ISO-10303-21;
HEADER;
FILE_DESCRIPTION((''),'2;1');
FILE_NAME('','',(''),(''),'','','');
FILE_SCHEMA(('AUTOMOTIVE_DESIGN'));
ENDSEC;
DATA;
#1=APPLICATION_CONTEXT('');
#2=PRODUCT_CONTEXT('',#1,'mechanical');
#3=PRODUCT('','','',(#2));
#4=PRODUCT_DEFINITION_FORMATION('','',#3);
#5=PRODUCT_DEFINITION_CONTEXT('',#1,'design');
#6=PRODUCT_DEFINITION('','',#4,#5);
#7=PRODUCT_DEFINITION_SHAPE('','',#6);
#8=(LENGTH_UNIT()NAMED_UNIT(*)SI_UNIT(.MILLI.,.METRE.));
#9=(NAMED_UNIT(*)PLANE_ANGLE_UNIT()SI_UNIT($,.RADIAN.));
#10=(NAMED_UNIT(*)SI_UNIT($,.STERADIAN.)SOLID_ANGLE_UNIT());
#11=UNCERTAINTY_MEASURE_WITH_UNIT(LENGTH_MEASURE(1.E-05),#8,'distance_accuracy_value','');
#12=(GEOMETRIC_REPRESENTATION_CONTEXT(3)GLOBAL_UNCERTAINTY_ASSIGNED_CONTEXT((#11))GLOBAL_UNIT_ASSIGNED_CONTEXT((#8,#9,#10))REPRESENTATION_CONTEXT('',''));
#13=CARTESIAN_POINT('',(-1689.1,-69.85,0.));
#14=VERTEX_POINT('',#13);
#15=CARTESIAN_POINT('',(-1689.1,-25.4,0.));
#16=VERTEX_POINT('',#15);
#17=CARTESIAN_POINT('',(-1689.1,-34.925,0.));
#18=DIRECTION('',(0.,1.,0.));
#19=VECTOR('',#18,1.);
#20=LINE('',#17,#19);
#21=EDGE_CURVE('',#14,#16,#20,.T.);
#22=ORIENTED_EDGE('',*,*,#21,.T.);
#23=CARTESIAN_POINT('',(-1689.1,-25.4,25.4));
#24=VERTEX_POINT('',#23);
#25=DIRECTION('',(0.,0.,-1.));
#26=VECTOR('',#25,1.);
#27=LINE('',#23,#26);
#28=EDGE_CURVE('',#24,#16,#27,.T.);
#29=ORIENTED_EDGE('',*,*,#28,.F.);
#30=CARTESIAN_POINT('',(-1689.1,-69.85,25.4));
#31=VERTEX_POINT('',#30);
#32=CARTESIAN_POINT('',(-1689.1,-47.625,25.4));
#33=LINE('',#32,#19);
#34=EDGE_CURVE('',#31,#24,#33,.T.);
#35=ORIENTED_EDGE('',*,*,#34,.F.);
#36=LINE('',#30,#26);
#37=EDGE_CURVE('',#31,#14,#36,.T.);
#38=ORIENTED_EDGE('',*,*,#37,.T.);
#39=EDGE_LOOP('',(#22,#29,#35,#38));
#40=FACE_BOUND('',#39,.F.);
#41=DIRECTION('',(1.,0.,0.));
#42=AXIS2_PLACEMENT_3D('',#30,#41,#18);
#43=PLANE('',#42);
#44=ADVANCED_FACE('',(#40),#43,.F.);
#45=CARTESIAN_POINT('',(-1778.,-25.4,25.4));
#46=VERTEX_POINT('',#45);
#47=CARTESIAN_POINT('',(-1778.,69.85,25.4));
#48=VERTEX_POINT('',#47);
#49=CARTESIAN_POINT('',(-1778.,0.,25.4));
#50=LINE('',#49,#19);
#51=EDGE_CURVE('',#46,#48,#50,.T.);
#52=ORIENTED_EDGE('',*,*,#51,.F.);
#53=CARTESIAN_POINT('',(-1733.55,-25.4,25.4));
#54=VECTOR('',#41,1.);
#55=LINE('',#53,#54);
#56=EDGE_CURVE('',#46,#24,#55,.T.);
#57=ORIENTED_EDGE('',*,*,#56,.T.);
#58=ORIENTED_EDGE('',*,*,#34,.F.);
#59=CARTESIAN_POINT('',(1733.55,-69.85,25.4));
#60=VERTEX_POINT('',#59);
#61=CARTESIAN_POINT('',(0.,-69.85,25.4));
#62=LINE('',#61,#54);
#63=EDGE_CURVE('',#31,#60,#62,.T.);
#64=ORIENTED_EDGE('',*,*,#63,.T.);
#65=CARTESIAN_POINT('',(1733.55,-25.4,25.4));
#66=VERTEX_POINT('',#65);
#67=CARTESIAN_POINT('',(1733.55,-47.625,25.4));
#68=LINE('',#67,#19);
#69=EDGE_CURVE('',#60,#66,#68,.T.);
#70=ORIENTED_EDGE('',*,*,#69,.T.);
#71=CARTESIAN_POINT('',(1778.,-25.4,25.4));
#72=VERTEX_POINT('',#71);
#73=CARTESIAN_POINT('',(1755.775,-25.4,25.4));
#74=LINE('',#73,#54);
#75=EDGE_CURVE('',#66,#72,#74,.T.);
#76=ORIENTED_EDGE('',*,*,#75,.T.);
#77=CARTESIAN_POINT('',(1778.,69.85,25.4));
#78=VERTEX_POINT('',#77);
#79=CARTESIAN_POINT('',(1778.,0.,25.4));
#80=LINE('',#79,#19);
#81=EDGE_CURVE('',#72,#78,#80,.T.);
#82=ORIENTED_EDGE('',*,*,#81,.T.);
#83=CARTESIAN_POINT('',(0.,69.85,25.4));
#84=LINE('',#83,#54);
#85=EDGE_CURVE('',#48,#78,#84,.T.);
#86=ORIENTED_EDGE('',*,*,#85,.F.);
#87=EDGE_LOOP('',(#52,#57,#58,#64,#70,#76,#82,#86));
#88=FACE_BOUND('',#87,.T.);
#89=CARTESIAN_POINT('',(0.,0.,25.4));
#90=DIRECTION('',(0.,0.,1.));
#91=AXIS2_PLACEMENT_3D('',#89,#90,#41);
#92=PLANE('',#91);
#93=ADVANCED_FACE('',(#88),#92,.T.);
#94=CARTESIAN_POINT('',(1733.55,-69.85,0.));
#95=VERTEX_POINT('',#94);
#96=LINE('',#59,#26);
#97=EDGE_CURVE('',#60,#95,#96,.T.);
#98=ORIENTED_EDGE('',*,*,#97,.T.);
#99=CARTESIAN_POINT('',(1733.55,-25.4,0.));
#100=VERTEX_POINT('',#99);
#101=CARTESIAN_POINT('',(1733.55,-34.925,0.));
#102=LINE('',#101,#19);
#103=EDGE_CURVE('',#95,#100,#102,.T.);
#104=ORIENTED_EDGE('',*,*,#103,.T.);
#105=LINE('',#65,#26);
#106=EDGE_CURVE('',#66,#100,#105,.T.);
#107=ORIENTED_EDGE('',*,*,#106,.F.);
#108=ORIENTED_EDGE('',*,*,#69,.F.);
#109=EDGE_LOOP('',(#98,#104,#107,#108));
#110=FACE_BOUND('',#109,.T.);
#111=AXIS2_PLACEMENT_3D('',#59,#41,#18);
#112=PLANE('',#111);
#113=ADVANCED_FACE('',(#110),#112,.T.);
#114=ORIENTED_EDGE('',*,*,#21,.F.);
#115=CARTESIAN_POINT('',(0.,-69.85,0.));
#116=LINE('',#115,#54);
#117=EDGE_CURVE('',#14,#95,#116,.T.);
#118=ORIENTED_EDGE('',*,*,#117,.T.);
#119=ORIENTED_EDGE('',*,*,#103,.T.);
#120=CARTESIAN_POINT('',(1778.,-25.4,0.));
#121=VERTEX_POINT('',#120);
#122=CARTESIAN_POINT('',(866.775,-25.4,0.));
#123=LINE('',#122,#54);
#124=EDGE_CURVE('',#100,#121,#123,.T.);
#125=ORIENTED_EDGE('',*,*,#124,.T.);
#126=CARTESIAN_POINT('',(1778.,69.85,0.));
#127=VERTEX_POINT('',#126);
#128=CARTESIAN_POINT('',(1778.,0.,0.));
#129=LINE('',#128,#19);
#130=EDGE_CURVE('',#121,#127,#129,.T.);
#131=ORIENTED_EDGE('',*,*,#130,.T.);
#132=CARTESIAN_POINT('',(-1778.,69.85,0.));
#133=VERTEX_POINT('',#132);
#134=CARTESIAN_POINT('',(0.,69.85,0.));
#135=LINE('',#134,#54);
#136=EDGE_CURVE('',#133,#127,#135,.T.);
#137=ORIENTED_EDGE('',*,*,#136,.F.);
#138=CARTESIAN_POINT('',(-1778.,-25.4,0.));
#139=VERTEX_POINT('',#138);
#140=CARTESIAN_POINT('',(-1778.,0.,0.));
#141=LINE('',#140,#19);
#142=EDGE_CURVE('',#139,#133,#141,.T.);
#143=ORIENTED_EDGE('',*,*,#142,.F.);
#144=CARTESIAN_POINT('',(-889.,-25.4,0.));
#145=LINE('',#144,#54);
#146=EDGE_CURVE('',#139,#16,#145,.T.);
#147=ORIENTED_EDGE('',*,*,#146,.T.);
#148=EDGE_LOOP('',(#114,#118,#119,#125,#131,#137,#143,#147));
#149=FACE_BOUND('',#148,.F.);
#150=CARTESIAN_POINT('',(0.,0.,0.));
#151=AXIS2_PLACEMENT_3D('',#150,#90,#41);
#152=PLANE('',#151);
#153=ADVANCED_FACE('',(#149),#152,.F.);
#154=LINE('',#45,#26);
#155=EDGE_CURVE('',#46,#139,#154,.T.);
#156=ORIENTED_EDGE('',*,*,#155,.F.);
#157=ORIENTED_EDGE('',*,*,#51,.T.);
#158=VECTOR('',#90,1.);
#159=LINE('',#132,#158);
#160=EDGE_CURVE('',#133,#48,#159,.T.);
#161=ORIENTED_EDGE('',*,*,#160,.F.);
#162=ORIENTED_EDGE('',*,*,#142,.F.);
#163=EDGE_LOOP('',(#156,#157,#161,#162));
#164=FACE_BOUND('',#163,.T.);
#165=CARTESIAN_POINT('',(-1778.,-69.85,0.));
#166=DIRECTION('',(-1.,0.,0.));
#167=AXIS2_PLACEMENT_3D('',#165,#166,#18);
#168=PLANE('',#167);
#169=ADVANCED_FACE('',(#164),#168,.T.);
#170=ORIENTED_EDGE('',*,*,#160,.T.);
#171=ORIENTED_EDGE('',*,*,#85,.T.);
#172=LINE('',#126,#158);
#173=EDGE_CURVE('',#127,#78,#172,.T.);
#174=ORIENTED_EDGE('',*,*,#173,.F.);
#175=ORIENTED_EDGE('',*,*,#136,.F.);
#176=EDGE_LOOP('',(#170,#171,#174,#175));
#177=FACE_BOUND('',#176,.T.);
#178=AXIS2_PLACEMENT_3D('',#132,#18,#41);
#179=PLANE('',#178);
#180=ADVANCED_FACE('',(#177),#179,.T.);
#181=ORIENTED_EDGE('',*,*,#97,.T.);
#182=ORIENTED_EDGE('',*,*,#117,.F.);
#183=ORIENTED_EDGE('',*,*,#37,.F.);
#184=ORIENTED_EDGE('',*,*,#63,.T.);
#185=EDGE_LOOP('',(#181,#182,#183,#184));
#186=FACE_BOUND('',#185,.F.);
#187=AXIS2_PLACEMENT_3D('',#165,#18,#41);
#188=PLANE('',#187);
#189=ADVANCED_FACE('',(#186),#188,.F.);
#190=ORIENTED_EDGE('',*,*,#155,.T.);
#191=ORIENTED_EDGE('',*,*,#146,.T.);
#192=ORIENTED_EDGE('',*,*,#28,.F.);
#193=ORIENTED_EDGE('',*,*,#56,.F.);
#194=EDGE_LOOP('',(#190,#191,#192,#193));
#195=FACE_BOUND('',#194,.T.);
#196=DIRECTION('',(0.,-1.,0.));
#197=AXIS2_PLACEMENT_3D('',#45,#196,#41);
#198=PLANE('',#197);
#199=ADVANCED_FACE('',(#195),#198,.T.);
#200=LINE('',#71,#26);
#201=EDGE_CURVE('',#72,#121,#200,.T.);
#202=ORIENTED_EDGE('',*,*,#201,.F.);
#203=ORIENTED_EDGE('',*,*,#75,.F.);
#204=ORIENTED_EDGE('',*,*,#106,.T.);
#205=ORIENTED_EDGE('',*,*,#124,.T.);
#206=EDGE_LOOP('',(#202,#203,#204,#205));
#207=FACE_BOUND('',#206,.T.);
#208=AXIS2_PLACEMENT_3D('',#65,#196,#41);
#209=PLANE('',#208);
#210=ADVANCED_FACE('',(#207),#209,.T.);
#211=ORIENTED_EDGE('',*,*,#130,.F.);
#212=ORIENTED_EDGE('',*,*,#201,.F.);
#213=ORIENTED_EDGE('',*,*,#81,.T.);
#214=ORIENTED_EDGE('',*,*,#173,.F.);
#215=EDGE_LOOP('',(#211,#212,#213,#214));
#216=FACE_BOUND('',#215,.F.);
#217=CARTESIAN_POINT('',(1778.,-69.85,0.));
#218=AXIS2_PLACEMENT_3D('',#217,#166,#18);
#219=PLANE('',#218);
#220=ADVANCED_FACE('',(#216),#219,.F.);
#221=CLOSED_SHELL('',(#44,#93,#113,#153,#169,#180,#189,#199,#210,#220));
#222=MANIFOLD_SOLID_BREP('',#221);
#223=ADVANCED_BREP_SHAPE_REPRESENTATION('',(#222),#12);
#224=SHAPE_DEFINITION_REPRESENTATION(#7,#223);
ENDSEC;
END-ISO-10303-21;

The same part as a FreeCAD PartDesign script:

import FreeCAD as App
import Part
import Sketcher

V = App.Vector
Q = App.Units.Quantity

doc = App.newDocument("Part")
body = doc.addObject("PartDesign::Body", "Body")

# Sketch on XY plane
sketch1 = body.newObject("Sketcher::SketchObject", "Sketch")
sketch1.AttachmentSupport = (doc.getObject("XY_Plane"), [""])
sketch1.MapMode = "FlatFace"
sketch1.addGeometry([
    Part.LineSegment(V(-1778, 69.85, 0), V(-1778, -69.85, 0)),
    Part.LineSegment(V(-1778, -69.85, 0), V(1778, -69.85, 0)),
    Part.LineSegment(V(1778, -69.85, 0), V(1778, 69.85, 0)),
    Part.LineSegment(V(1778, 69.85, 0), V(-1778, 69.85, 0)),
], False)
sketch1.addConstraint([
    Sketcher.Constraint("Coincident", 0, 2, 1, 1),
    Sketcher.Constraint("Coincident", 1, 2, 2, 1),
    Sketcher.Constraint("Coincident", 2, 2, 3, 1),
    Sketcher.Constraint("Coincident", 3, 2, 0, 1),
    Sketcher.Constraint("Vertical", 0),
    Sketcher.Constraint("Horizontal", 1),
    Sketcher.Constraint("Vertical", 2),
    Sketcher.Constraint("Horizontal", 3),
    Sketcher.Constraint("Symmetric", 0, 2, 2, 2, -1, 1),
    Sketcher.Constraint("DistanceX", 1, 1, 1, 2, Q("140 in")),
    Sketcher.Constraint("DistanceY", 0, 2, 0, 1, Q("5.5 in")),
])
pad1 = body.newObject("PartDesign::Pad", "Pad")
pad1.Profile = sketch1
pad1.Length = Q("1 in")

# Sketch on XY plane
sketch2 = body.newObject("Sketcher::SketchObject", "Sketch001")
sketch2.AttachmentSupport = (doc.getObject("XY_Plane"), [""])
sketch2.MapMode = "FlatFace"
sketch2.AttachmentOffset = App.Placement(V(0, 0, 1 * 25.4), App.Rotation())
sketch2.addGeometry([
    Part.LineSegment(V(-1778, -25.4, 0), V(-1778, -69.85, 0)),
    Part.LineSegment(V(-1778, -69.85, 0), V(-1689.1, -69.85, 0)),
    Part.LineSegment(V(-1689.1, -69.85, 0), V(-1689.1, -25.4, 0)),
    Part.LineSegment(V(-1689.1, -25.4, 0), V(-1778, -25.4, 0)),
], False)
sketch2.addConstraint([
    Sketcher.Constraint("Coincident", 0, 2, 1, 1),
    Sketcher.Constraint("Coincident", 1, 2, 2, 1),
    Sketcher.Constraint("Coincident", 2, 2, 3, 1),
    Sketcher.Constraint("Coincident", 3, 2, 0, 1),
    Sketcher.Constraint("Vertical", 0),
    Sketcher.Constraint("Horizontal", 1),
    Sketcher.Constraint("Vertical", 2),
    Sketcher.Constraint("Horizontal", 3),
    Sketcher.Constraint("DistanceX", 1, 1, 1, 2, Q("3.5 in")),
    Sketcher.Constraint("DistanceX", 0, 2, -1, 1, Q("70 in")),
    Sketcher.Constraint("DistanceY", 2, 2, -1, 1, Q("1 in")),
    Sketcher.Constraint("DistanceY", 0, 2, 0, 1, Q("1.75 in")),
])
pocket1 = body.newObject("PartDesign::Pocket", "Pocket")
pocket1.Profile = sketch2
pocket1.Type = "ThroughAll"

# Sketch on XY plane
sketch3 = body.newObject("Sketcher::SketchObject", "Sketch002")
sketch3.AttachmentSupport = (doc.getObject("XY_Plane"), [""])
sketch3.MapMode = "FlatFace"
sketch3.AttachmentOffset = App.Placement(V(0, 0, 1 * 25.4), App.Rotation())
sketch3.addGeometry([
    Part.LineSegment(V(1733.55, -25.4, 0), V(1733.55, -69.85, 0)),
    Part.LineSegment(V(1733.55, -69.85, 0), V(1778, -69.85, 0)),
    Part.LineSegment(V(1778, -69.85, 0), V(1778, -25.4, 0)),
    Part.LineSegment(V(1778, -25.4, 0), V(1733.55, -25.4, 0)),
], False)
sketch3.addConstraint([
    Sketcher.Constraint("Coincident", 0, 2, 1, 1),
    Sketcher.Constraint("Coincident", 1, 2, 2, 1),
    Sketcher.Constraint("Coincident", 2, 2, 3, 1),
    Sketcher.Constraint("Coincident", 3, 2, 0, 1),
    Sketcher.Constraint("Vertical", 0),
    Sketcher.Constraint("Horizontal", 1),
    Sketcher.Constraint("Vertical", 2),
    Sketcher.Constraint("Horizontal", 3),
    Sketcher.Constraint("Equal", 3, 0),
    Sketcher.Constraint("DistanceX", -1, 1, 1, 2, Q("70 in")),
    Sketcher.Constraint("DistanceY", 2, 2, -1, 1, Q("1 in")),
    Sketcher.Constraint("DistanceX", 1, 1, 1, 2, Q("1.75 in")),
])
pocket2 = body.newObject("PartDesign::Pocket", "Pocket001")
pocket2.Profile = sketch3
pocket2.Type = "ThroughAll"

doc.recompute()
